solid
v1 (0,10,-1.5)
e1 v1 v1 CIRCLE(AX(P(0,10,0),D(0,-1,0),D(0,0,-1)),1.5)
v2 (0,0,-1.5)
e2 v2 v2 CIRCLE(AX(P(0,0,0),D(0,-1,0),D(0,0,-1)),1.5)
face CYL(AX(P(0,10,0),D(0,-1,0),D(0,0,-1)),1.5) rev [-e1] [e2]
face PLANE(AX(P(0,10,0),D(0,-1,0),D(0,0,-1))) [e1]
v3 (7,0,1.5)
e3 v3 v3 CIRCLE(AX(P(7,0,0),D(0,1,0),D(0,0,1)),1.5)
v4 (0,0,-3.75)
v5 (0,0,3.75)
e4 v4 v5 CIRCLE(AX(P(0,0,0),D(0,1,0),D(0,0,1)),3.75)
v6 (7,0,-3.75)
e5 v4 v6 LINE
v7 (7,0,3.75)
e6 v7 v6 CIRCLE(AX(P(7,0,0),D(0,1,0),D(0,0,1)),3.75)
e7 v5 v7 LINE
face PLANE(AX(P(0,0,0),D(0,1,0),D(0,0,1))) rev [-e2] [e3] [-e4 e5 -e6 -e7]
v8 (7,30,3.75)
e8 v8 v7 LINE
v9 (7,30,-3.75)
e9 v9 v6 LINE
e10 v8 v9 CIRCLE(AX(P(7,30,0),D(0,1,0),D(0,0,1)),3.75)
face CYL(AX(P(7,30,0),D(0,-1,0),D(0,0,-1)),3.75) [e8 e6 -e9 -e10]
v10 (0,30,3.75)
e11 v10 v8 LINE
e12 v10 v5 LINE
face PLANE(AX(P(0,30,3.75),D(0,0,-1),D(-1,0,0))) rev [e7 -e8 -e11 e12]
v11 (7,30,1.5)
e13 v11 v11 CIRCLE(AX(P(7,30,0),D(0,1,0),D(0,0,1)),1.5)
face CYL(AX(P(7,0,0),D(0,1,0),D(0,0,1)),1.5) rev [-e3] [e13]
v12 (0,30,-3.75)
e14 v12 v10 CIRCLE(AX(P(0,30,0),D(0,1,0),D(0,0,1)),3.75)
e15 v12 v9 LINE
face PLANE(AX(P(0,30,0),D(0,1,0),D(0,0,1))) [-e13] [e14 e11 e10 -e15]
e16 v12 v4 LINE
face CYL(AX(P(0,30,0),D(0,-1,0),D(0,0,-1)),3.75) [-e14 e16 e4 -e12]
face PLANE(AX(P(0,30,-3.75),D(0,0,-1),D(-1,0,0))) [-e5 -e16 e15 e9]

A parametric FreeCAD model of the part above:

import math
import FreeCAD as App
import Part
import Sketcher

V = App.Vector

doc = App.newDocument("Part")
body = doc.addObject("PartDesign::Body", "Body")

sketch1 = doc.addObject("Sketcher::SketchObject", "Sketch")
body.addObject(sketch1)
sketch1.AttachmentSupport = (doc.XZ_Plane, [""])
sketch1.MapMode = "FlatFace"
sketch1.addGeometry(Part.ArcOfCircle(Part.Circle(V(0, 0, 0), V(0, 0, 1), 3.8), math.radians(90), math.radians(270)), False)
sketch1.addGeometry(Part.LineSegment(V(0, 3.8, 0), V(7, 3.8, 0)), False)
sketch1.addGeometry(Part.ArcOfCircle(Part.Circle(V(7, 0, 0), V(0, 0, 1), 3.8), math.radians(-90), math.radians(90)), False)
sketch1.addGeometry(Part.LineSegment(V(7, -3.8, 0), V(0, -3.8, 0)), False)
sketch1.addConstraint(Sketcher.Constraint("Tangent", 0, 1, 1, 1))
sketch1.addConstraint(Sketcher.Constraint("Tangent", 1, 2, 2, 2))
sketch1.addConstraint(Sketcher.Constraint("Tangent", 2, 1, 3, 1))
sketch1.addConstraint(Sketcher.Constraint("Tangent", 3, 2, 0, 2))
sketch1.addConstraint(Sketcher.Constraint("Horizontal", 1))
sketch1.addConstraint(Sketcher.Constraint("Horizontal", 3))
sketch1.addConstraint(Sketcher.Constraint("Coincident", 0, 3, -1, 1))
sketch1.addConstraint(Sketcher.Constraint("DistanceX", 1, 1, 1, 2, 7.0))
sketch1.addConstraint(Sketcher.Constraint("Radius", 0, 3.75))
pad1 = doc.addObject("PartDesign::Pad", "Pad")
body.addObject(pad1)
pad1.Profile = sketch1
pad1.Length = 30
pad1.Reversed = True

sketch2 = doc.addObject("Sketcher::SketchObject", "Sketch001")
body.addObject(sketch2)
sketch2.AttachmentSupport = (doc.XZ_Plane, [""])
sketch2.MapMode = "FlatFace"
sketch2.AttachmentOffset = App.Placement(V(0, 0, -30), App.Rotation())
sketch2.addGeometry(Part.Circle(V(7, 0, 0), V(0, 0, 1), 1.5), False)
sketch2.addConstraint(Sketcher.Constraint("PointOnObject", 0, 3, -1))
sketch2.addConstraint(Sketcher.Constraint("Diameter", 0, 3.0))
sketch2.addConstraint(Sketcher.Constraint("DistanceX", -1, 1, 0, 3, 7.0))
pocket1 = doc.addObject("PartDesign::Pocket", "Pocket")
body.addObject(pocket1)
pocket1.Profile = sketch2
pocket1.Length = 30
pocket1.Reversed = True

sketch3 = doc.addObject("Sketcher::SketchObject", "Sketch002")
body.addObject(sketch3)
sketch3.AttachmentSupport = (doc.XZ_Plane, [""])
sketch3.MapMode = "FlatFace"
sketch3.addGeometry(Part.Circle(V(0, 0, 0), V(0, 0, 1), 1.5), False)
sketch3.addConstraint(Sketcher.Constraint("Coincident", 0, 3, -1, 1))
sketch3.addConstraint(Sketcher.Constraint("Diameter", 0, 3.0))
pocket2 = doc.addObject("PartDesign::Pocket", "Pocket001")
body.addObject(pocket2)
pocket2.Profile = sketch3
pocket2.Length = 10

doc.recompute()
